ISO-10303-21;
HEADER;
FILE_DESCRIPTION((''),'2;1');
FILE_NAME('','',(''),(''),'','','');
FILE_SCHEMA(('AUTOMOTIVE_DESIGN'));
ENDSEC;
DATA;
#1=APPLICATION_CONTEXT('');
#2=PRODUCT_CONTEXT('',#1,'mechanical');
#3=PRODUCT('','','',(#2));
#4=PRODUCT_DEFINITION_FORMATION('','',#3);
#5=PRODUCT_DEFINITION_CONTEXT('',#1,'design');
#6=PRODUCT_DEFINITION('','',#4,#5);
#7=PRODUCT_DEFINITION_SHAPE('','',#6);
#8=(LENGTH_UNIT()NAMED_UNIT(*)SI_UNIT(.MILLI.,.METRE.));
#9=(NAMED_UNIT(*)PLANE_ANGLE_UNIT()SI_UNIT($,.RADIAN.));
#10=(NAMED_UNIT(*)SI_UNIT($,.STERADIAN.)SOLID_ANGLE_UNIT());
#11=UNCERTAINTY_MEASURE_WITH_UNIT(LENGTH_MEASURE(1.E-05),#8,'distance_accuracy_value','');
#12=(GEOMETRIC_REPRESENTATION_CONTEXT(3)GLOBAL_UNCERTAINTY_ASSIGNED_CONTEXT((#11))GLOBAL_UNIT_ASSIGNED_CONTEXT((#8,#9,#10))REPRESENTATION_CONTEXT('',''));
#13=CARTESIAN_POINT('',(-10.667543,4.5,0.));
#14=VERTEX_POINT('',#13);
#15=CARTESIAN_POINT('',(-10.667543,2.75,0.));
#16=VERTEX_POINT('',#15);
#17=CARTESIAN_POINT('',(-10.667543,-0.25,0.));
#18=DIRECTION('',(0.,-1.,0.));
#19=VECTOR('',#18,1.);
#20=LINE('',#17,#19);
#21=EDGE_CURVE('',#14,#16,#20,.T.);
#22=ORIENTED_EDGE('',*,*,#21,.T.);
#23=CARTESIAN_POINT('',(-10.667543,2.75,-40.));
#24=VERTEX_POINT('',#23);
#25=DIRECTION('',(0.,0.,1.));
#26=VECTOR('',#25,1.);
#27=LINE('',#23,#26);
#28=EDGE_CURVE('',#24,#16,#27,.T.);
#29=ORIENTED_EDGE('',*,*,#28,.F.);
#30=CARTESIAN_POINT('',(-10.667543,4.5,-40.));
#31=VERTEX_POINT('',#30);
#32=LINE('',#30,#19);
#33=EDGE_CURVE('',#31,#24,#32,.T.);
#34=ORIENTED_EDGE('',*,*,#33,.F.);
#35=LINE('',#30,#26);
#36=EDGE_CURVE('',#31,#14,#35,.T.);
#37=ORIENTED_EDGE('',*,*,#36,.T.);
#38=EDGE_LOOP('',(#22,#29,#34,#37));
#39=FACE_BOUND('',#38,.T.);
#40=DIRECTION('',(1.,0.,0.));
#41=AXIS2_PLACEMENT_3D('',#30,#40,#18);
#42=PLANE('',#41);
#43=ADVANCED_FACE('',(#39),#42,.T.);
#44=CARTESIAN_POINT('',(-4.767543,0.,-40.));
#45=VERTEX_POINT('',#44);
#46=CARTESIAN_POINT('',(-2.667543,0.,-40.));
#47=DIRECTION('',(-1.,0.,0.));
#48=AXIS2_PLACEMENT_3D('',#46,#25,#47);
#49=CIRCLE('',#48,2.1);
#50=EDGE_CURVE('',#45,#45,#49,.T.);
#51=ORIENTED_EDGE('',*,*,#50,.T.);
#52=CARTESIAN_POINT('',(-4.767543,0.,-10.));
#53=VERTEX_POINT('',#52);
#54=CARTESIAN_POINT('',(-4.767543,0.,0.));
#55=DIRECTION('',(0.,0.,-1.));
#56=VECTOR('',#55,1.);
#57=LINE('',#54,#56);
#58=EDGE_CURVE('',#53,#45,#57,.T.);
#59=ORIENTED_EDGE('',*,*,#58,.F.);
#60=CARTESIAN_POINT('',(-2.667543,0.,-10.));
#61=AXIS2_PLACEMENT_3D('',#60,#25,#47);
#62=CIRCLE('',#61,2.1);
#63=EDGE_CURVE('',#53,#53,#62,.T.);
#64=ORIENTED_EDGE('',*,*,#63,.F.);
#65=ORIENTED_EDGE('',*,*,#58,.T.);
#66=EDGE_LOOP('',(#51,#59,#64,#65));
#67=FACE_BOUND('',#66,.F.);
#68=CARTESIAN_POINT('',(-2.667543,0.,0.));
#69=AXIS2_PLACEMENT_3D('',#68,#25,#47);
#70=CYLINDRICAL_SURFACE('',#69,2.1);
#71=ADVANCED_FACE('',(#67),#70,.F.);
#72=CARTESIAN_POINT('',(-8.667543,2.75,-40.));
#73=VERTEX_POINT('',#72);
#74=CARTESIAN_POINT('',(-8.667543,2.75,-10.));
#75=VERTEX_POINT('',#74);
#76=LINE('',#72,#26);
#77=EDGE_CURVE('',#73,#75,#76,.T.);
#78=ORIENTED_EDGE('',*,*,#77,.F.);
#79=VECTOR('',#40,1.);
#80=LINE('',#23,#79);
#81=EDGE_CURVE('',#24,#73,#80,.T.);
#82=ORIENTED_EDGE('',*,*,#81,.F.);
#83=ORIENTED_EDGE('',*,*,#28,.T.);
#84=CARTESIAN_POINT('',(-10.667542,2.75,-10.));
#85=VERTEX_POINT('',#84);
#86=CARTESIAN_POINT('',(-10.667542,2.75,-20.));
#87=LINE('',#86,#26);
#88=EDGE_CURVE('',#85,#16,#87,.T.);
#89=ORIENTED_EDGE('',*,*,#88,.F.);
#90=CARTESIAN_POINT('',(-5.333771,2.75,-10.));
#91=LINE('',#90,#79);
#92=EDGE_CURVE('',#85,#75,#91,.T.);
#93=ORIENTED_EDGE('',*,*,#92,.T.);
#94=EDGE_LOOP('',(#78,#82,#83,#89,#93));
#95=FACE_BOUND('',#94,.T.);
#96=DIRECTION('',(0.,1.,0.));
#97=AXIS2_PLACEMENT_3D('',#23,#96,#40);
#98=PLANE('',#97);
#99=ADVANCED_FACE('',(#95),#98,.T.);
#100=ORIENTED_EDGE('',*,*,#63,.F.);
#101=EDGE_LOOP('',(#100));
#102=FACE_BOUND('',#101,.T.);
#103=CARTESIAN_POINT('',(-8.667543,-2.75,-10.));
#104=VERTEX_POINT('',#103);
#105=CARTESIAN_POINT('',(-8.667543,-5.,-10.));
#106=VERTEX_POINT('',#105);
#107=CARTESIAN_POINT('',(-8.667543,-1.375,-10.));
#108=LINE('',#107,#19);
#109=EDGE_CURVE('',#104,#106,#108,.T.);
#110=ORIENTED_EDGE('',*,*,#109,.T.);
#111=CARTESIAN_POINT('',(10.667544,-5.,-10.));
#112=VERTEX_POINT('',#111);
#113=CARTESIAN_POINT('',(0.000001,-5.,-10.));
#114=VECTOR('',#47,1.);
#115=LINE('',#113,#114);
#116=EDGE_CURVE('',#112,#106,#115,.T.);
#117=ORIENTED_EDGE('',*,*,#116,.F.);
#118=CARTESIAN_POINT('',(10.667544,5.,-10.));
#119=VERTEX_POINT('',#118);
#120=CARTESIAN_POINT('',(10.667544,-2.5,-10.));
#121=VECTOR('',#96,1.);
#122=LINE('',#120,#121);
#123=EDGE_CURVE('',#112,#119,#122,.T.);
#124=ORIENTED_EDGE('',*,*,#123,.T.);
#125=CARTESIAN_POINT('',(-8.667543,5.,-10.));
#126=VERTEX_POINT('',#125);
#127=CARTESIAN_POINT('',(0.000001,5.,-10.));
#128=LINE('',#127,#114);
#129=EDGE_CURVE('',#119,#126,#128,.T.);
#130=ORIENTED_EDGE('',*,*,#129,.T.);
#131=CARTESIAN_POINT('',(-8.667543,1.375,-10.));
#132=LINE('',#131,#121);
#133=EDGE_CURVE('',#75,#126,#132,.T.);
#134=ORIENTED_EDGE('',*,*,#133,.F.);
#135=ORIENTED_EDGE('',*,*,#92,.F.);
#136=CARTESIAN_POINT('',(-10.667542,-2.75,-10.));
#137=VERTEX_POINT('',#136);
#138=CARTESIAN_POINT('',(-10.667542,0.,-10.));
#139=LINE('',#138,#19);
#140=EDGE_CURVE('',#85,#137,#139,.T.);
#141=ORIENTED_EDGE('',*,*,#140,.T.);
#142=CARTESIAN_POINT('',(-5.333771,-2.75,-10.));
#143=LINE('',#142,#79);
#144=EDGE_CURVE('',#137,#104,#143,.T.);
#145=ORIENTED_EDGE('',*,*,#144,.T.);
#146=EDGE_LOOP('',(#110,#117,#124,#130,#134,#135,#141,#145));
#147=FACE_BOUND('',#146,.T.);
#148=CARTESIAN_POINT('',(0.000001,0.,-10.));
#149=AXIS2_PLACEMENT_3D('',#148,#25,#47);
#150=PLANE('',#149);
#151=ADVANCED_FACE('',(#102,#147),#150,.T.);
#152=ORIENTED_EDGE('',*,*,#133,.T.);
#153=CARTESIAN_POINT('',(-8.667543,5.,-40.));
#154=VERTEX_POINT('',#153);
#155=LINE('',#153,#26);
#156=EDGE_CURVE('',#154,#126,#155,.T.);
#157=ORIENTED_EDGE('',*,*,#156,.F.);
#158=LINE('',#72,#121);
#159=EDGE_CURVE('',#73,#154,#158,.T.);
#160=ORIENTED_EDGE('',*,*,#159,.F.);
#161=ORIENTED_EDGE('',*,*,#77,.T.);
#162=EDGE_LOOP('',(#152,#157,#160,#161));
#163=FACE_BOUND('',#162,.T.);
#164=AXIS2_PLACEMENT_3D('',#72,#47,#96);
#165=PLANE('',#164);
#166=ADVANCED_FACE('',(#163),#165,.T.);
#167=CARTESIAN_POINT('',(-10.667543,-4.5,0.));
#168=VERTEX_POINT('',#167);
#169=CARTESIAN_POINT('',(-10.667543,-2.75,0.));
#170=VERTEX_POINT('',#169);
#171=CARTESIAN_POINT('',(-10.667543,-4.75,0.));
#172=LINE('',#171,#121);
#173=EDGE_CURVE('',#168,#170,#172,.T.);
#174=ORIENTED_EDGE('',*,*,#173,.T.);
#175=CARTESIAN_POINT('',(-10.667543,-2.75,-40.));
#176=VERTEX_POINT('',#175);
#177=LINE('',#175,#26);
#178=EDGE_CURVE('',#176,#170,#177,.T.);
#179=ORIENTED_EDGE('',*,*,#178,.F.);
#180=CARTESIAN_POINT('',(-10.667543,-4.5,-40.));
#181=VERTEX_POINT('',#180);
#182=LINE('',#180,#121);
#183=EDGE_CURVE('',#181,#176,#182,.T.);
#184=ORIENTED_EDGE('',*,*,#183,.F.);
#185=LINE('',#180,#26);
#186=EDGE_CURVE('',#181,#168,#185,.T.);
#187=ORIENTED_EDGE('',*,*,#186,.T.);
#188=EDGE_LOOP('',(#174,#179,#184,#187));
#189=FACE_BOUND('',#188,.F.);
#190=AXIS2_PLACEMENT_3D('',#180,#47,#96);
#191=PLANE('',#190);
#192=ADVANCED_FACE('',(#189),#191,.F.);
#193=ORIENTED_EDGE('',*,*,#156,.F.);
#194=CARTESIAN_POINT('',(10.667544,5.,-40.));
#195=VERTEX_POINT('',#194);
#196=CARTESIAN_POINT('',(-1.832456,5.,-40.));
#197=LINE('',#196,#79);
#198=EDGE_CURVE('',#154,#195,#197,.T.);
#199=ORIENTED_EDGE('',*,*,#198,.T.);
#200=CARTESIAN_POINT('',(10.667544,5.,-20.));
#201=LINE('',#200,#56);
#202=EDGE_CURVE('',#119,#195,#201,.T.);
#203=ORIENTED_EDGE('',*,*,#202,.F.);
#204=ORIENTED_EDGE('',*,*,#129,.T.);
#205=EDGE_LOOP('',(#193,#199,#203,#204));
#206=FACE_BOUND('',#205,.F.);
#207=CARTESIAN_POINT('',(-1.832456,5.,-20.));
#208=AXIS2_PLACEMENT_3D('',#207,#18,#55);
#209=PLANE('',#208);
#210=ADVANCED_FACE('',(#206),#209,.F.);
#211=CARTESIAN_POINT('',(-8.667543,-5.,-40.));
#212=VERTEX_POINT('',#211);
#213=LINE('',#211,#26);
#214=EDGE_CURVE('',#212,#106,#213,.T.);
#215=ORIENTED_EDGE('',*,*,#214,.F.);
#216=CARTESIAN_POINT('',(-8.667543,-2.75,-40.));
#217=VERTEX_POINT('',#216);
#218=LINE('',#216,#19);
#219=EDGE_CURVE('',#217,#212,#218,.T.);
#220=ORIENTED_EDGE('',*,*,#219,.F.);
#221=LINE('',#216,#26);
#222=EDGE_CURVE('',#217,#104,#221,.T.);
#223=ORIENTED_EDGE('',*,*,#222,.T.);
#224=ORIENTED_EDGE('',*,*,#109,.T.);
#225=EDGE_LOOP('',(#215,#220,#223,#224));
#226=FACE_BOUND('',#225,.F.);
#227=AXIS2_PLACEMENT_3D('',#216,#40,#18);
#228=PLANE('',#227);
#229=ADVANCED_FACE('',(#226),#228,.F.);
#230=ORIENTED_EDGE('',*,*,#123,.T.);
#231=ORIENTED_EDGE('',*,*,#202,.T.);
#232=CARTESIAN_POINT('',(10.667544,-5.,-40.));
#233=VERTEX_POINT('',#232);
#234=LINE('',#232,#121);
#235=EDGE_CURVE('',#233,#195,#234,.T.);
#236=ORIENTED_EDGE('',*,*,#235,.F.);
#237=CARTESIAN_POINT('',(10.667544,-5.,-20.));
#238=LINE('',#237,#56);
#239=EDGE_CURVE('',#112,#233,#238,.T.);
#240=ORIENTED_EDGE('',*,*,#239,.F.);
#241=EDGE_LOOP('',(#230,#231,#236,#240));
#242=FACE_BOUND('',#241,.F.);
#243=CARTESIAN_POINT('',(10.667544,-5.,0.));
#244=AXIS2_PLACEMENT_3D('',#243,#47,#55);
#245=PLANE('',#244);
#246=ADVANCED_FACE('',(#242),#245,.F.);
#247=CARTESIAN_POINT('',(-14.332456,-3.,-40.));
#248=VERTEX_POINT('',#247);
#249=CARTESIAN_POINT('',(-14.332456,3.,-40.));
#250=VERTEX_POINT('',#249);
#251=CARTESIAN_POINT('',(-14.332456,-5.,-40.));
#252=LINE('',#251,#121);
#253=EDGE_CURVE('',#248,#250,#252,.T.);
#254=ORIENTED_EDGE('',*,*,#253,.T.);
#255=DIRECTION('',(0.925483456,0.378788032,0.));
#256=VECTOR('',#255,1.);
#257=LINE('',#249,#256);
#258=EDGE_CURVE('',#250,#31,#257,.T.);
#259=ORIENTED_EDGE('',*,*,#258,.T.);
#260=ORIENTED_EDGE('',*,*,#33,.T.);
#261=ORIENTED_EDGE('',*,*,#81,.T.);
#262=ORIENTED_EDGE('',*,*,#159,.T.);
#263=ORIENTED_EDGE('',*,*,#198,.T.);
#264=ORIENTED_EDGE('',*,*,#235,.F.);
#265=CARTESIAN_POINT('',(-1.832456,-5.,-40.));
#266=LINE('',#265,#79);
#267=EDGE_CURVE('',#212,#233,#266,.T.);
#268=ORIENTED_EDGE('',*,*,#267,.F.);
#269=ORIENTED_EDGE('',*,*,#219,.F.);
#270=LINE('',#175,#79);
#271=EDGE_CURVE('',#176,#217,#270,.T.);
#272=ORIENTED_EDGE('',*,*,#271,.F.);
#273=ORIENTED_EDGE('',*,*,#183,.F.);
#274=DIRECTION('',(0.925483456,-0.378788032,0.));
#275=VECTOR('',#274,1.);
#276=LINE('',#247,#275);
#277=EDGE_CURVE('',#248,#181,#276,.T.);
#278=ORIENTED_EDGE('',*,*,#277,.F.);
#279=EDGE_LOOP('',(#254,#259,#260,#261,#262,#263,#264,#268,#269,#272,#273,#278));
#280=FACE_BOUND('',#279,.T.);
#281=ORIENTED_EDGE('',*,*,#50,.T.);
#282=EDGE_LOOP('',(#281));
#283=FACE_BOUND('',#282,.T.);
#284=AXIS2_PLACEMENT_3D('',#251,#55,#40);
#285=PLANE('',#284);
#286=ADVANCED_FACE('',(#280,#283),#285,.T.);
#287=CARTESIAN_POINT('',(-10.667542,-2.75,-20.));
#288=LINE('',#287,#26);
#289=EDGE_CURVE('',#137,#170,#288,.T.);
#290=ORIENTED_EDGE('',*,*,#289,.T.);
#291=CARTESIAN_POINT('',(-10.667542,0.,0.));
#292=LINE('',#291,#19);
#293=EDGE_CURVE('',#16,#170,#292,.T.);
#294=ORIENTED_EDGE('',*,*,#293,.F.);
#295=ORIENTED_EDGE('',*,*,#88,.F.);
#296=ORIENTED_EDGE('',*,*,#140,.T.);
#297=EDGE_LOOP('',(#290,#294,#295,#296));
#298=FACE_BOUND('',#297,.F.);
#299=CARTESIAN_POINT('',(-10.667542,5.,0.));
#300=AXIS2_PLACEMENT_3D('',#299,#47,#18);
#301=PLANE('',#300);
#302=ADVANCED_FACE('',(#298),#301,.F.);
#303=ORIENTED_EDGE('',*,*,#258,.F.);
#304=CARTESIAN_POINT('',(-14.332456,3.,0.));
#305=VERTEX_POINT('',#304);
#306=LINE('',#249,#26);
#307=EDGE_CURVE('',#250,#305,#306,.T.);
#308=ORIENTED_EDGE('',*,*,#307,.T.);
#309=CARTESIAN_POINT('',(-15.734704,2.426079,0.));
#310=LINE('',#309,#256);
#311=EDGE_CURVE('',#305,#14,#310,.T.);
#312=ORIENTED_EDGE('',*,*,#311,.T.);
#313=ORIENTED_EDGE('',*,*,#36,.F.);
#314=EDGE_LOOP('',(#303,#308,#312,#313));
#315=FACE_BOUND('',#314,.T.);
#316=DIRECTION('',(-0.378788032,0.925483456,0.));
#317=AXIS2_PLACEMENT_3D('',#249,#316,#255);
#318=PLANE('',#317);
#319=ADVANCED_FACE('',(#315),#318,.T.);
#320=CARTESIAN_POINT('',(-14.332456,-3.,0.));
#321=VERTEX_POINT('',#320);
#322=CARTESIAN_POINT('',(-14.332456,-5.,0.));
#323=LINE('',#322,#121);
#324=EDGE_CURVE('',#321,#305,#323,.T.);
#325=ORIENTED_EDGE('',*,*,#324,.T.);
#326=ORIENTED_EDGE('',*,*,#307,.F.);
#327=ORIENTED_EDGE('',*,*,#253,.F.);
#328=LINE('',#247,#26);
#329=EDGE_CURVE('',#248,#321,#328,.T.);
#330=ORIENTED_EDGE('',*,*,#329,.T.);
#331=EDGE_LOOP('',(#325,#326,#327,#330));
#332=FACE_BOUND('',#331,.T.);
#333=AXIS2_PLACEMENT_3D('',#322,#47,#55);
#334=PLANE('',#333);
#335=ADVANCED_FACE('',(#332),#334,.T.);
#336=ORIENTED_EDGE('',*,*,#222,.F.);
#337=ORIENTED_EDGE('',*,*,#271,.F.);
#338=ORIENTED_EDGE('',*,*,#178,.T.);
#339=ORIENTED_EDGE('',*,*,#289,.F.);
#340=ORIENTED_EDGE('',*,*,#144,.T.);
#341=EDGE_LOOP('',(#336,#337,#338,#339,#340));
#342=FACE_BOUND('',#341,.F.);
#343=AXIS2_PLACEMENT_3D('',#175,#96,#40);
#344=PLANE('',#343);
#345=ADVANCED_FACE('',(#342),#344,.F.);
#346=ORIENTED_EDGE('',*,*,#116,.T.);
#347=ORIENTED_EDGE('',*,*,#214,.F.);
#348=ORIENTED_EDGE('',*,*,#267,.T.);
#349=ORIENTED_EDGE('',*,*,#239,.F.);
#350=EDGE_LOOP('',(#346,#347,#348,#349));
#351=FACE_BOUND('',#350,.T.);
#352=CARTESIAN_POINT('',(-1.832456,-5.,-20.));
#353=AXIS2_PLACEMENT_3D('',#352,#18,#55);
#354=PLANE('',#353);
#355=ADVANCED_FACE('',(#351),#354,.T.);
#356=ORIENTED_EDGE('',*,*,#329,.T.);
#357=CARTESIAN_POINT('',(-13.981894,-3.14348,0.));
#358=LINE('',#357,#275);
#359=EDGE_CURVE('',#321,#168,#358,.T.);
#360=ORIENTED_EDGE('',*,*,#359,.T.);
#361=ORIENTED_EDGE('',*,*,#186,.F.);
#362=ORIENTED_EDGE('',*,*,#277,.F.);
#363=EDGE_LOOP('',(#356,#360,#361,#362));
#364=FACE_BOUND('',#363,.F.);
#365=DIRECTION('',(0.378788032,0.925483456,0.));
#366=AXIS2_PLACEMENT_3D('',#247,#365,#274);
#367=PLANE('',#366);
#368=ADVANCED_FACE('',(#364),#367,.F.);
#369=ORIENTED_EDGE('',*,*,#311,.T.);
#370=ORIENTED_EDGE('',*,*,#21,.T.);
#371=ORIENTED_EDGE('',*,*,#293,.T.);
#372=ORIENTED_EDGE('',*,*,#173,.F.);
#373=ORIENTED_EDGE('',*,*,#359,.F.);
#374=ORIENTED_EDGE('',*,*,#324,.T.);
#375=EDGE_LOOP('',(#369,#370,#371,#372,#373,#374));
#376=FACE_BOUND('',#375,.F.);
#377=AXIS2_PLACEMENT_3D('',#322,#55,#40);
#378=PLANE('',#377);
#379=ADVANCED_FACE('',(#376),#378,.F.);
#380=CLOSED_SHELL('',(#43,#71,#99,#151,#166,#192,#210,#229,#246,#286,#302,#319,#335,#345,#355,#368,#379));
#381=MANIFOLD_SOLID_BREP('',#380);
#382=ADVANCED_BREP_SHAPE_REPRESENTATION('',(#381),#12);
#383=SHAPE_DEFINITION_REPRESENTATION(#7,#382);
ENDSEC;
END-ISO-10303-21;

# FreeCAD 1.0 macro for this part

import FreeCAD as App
import Part
import Sketcher

V = App.Vector

doc = App.newDocument("Part")
body = doc.addObject("PartDesign::Body", "Body")

# Sketch on XY plane
sketch1 = body.newObject("Sketcher::SketchObject", "Sketch")
sketch1.AttachmentSupport = (doc.getObject("XY_Plane"), [""])
sketch1.MapMode = "FlatFace"
sketch1.addGeometry(Part.LineSegment(V(-20, 12, 0), V(-20, -12, 0)), False)
sketch1.addGeometry(Part.LineSegment(V(-20, -12, 0), V(20, -12, 0)), False)
sketch1.addGeometry(Part.LineSegment(V(20, -12, 0), V(20, 12, 0)), False)
sketch1.addGeometry(Part.LineSegment(V(20, 12, 0), V(-20, 12, 0)), False)
sketch1.addConstraint(Sketcher.Constraint("Coincident", 0, 2, 1, 1))
sketch1.addConstraint(Sketcher.Constraint("Coincident", 1, 2, 2, 1))
sketch1.addConstraint(Sketcher.Constraint("Coincident", 2, 2, 3, 1))
sketch1.addConstraint(Sketcher.Constraint("Coincident", 3, 2, 0, 1))
sketch1.addConstraint(Sketcher.Constraint("Vertical", 0))
sketch1.addConstraint(Sketcher.Constraint("Horizontal", 1))
sketch1.addConstraint(Sketcher.Constraint("Vertical", 2))
sketch1.addConstraint(Sketcher.Constraint("Horizontal", 3))
sketch1.addConstraint(Sketcher.Constraint("Symmetric", 0, 2, 2, 2, -1, 1))
sketch1.addConstraint(Sketcher.Constraint("DistanceX", 1, 1, 1, 2, 40.0))
sketch1.addConstraint(Sketcher.Constraint("DistanceY", 0, 2, 0, 1, 25.0))
pad1 = body.newObject("PartDesign::Pad", "Pad")
pad1.Profile = sketch1
pad1.Length = 10
pad1.Reversed = True

# Sketch on YZ plane
sketch2 = body.newObject("Sketcher::SketchObject", "Sketch001")
sketch2.AttachmentSupport = (doc.getObject("YZ_Plane"), [""])
sketch2.MapMode = "FlatFace"
sketch2.AttachmentOffset = App.Placement(V(0, 0, 20), App.Rotation())
sketch2.addGeometry(Part.LineSegment(V(-8.8, -0.5, 0), V(-8.8, -2.2, 0)), False)
sketch2.addGeometry(Part.LineSegment(V(-8.8, -2.2, 0), V(-6.8, -2.2, 0)), False)
sketch2.addGeometry(Part.LineSegment(V(-6.8, -2.2, 0), V(-6.8, 0, 0)), False)
sketch2.addGeometry(Part.LineSegment(V(-6.8, 0, 0), V(-12.5, 0, 0)), False)
sketch2.addGeometry(Part.LineSegment(V(-12.5, 0, 0), V(-12.5, -2, 0)), False)
sketch2.addGeometry(Part.LineSegment(V(-12.5, -2, 0), V(-8.8, -0.5, 0)), False)
sketch2.addGeometry(Part.LineSegment(V(-8.8, -7.8, 0), V(-8.8, -9.5, 0)), False)
sketch2.addGeometry(Part.LineSegment(V(-8.8, -9.5, 0), V(-12.5, -8, 0)), False)
sketch2.addGeometry(Part.LineSegment(V(-12.5, -8, 0), V(-12.5, -10, 0)), False)
sketch2.addGeometry(Part.LineSegment(V(-12.5, -10, 0), V(-6.8, -10, 0)), False)
sketch2.addGeometry(Part.LineSegment(V(-6.8, -10, 0), V(-6.8, -7.8, 0)), False)
sketch2.addGeometry(Part.LineSegment(V(-6.8, -7.8, 0), V(-8.8, -7.8, 0)), False)
sketch2.addConstraint(Sketcher.Constraint("Coincident", 0, 2, 1, 1))
sketch2.addConstraint(Sketcher.Constraint("Coincident", 1, 2, 2, 1))
sketch2.addConstraint(Sketcher.Constraint("Coincident", 2, 2, 3, 1))
sketch2.addConstraint(Sketcher.Constraint("Coincident", 3, 2, 4, 1))
sketch2.addConstraint(Sketcher.Constraint("Coincident", 4, 2, 5, 1))
sketch2.addConstraint(Sketcher.Constraint("Coincident", 5, 2, 0, 1))
sketch2.addConstraint(Sketcher.Constraint("Coincident", 6, 2, 7, 1))
sketch2.addConstraint(Sketcher.Constraint("Coincident", 7, 2, 8, 1))
sketch2.addConstraint(Sketcher.Constraint("Coincident", 8, 2, 9, 1))
sketch2.addConstraint(Sketcher.Constraint("Coincident", 9, 2, 10, 1))
sketch2.addConstraint(Sketcher.Constraint("Coincident", 10, 2, 11, 1))
sketch2.addConstraint(Sketcher.Constraint("Coincident", 11, 2, 6, 1))
sketch2.addConstraint(Sketcher.Constraint("Vertical", 0))
sketch2.addConstraint(Sketcher.Constraint("Horizontal", 1))
sketch2.addConstraint(Sketcher.Constraint("Vertical", 2))
sketch2.addConstraint(Sketcher.Constraint("Horizontal", 3))
sketch2.addConstraint(Sketcher.Constraint("Vertical", 4))
sketch2.addConstraint(Sketcher.Constraint("Vertical", 6))
sketch2.addConstraint(Sketcher.Constraint("Vertical", 8))
sketch2.addConstraint(Sketcher.Constraint("Horizontal", 9))
sketch2.addConstraint(Sketcher.Constraint("Vertical", 10))
sketch2.addConstraint(Sketcher.Constraint("Horizontal", 11))
sketch2.addConstraint(Sketcher.Constraint("PointOnObject", 2, 2, -1))
sketch2.addConstraint(Sketcher.Constraint("Vertical", 5, 2, 6, 2))
sketch2.addConstraint(Sketcher.Constraint("Vertical", 4, 2, 7, 2))
sketch2.addConstraint(Sketcher.Constraint("Vertical", 2, 2, 9, 2))
sketch2.addConstraint(Sketcher.Constraint("Equal", 11, 4))
sketch2.addConstraint(Sketcher.Constraint("Equal", 0, 6))
sketch2.addConstraint(Sketcher.Constraint("Equal", 4, 8))
sketch2.addConstraint(Sketcher.Constraint("Equal", 2, 10))
sketch2.addConstraint(Sketcher.Constraint("DistanceX", 1, 1, 1, 2, 2.0))
sketch2.addConstraint(Sketcher.Constraint("DistanceY", 7, 2, -1, 1, 8.0))
sketch2.addConstraint(Sketcher.Constraint("DistanceY", 6, 2, 5, 2, 9.0))
sketch2.addConstraint(Sketcher.Constraint("DistanceY", 0, 2, 0, 1, 1.75))
sketch2.addConstraint(Sketcher.Constraint("DistanceX", 3, 2, -1, 1, 12.5))
sketch2.addConstraint(Sketcher.Constraint("Distance", 5, 3.959998))
pocket1 = body.newObject("PartDesign::Pocket", "Pocket")
pocket1.Profile = sketch2
pocket1.Type = "ThroughAll"

# Sketch on YZ plane
sketch3 = body.newObject("Sketcher::SketchObject", "Sketch002")
sketch3.AttachmentSupport = (doc.getObject("YZ_Plane"), [""])
sketch3.MapMode = "FlatFace"
sketch3.AttachmentOffset = App.Placement(V(0, 0, -20), App.Rotation())
sketch3.addGeometry(Part.Circle(V(-0.8, -5, 0), V(0, 0, 1), 2.1), False)
sketch3.addConstraint(Sketcher.Constraint("Diameter", 0, 4.2))
sketch3.addConstraint(Sketcher.Constraint("DistanceY", 0, 3, -1, 1, 5.0))
sketch3.addConstraint(Sketcher.Constraint("DistanceX", 0, 3, -1, 1, 0.835087))
pocket2 = body.newObject("PartDesign::Pocket", "Pocket001")
pocket2.Profile = sketch3
pocket2.Type = "ThroughAll"
pocket2.Reversed = True

# Sketch on YZ plane
sketch4 = body.newObject("Sketcher::SketchObject", "Sketch003")
sketch4.AttachmentSupport = (doc.getObject("YZ_Plane"), [""])
sketch4.MapMode = "FlatFace"
sketch4.AttachmentOffset = App.Placement(V(0, 0, -20), App.Rotation())
sketch4.addGeometry(Part.LineSegment(V(13, 0, 0), V(13, -10, 0)), False)
sketch4.addGeometry(Part.LineSegment(V(13, -10, 0), V(-9, -10, 0)), False)
sketch4.addGeometry(Part.LineSegment(V(-9, -10, 0), V(-9, 0, 0)), False)
sketch4.addGeometry(Part.LineSegment(V(-9, 0, 0), V(13, 0, 0)), False)
sketch4.addConstraint(Sketcher.Constraint("Coincident", 0, 2, 1, 1))
sketch4.addConstraint(Sketcher.Constraint("Coincident", 1, 2, 2, 1))
sketch4.addConstraint(Sketcher.Constraint("Coincident", 2, 2, 3, 1))
sketch4.addConstraint(Sketcher.Constraint("Coincident", 3, 2, 0, 1))
sketch4.addConstraint(Sketcher.Constraint("Vertical", 0))
sketch4.addConstraint(Sketcher.Constraint("Horizontal", 1))
sketch4.addConstraint(Sketcher.Constraint("Vertical", 2))
sketch4.addConstraint(Sketcher.Constraint("Horizontal", 3))
sketch4.addConstraint(Sketcher.Constraint("PointOnObject", 2, 2, -1))
sketch4.addConstraint(Sketcher.Constraint("DistanceY", 0, 2, 0, 1, 10.0))
sketch4.addConstraint(Sketcher.Constraint("DistanceX", -1, 1, 0, 2, 12.500001))
sketch4.addConstraint(Sketcher.Constraint("DistanceX", 1, 2, 1, 1, 21.335087))
pocket3 = body.newObject("PartDesign::Pocket", "Pocket002")
pocket3.Profile = sketch4
pocket3.Length = 10
pocket3.Reversed = True
body2 = doc.addObject("PartDesign::Body", "Body001")
doc.recompute()

body.Placement = App.Placement(V(0, 0, 0), App.Rotation(V(0, 1, 0), 90))
boolean = body2.newObject("PartDesign::Boolean", "Boolean")
boolean.Type = "Fuse"
boolean.addObjects([body])
body3 = doc.addObject("PartDesign::Body", "Body002")
doc.recompute()

body2.Placement = App.Placement(V(-1.832456, -5, -20), App.Rotation(V(0, 0, 1), 270))
boolean2 = body3.newObject("PartDesign::Boolean", "Boolean001")
boolean2.Type = "Fuse"
boolean2.addObjects([body2])

doc.recompute()
